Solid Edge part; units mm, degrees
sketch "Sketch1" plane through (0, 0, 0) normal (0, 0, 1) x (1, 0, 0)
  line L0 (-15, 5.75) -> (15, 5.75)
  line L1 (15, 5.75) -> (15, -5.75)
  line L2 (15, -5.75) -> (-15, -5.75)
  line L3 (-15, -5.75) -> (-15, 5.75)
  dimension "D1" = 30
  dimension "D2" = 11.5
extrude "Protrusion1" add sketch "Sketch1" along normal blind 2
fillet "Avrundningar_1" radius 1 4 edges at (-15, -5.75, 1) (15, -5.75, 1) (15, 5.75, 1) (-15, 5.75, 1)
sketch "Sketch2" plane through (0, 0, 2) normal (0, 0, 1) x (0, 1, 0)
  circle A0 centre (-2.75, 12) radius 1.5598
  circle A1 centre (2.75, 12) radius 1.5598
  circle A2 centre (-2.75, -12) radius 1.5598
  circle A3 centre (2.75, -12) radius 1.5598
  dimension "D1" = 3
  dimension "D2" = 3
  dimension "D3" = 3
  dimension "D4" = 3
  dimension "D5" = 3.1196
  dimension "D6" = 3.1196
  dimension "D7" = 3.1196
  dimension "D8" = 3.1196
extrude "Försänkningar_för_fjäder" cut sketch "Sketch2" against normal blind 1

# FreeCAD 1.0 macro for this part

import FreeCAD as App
import Part
import Sketcher
from FreeCAD import Vector
Q = App.Units.Quantity


def edges_at(feature, points):
    """Names of the edges that pass closest to the given points."""
    edges = feature.Shape.Edges
    near = lambda p: min(range(len(edges)), key=lambda i: edges[i].distToShape(Part.Vertex(*p))[0])
    return sorted({f"Edge{near(p) + 1}" for p in points})

doc = App.newDocument("Part")
params = doc.addObject("Spreadsheet::Sheet", "Params")
for row, (alias, value) in enumerate([
    ("sketch1_height", "11.5 mm"),
    ("pad1_length", "2 mm"),
    ("fillet_radius", "1 mm"),
    ("pocket1_length", "1 mm"),
], start=1):
    params.set(f"A{row}", alias)
    params.set(f"B{row}", "=" + value)
    params.setAlias(f"B{row}", alias)

body = doc.addObject("PartDesign::Body", "Body")

# Sketch on XY plane
sketch1 = body.newObject("Sketcher::SketchObject", "Sketch")
sketch1.AttachmentSupport = (doc.getObject("XY_Plane"), [""])
sketch1.MapMode = "FlatFace"
sketch1.addGeometry([
    Part.LineSegment(Vector(15, 6, 0), Vector(-15, 6, 0)),
    Part.LineSegment(Vector(-15, 6, 0), Vector(-15, -6, 0)),
    Part.LineSegment(Vector(-15, -6, 0), Vector(15, -6, 0)),
    Part.LineSegment(Vector(15, -6, 0), Vector(15, 6, 0)),
], False)
sketch1.addConstraint([
    Sketcher.Constraint("Coincident", 0, 2, 1, 1),
    Sketcher.Constraint("Coincident", 1, 2, 2, 1),
    Sketcher.Constraint("Coincident", 2, 2, 3, 1),
    Sketcher.Constraint("Coincident", 3, 2, 0, 1),
    Sketcher.Constraint("Horizontal", 0),
    Sketcher.Constraint("Vertical", 1),
    Sketcher.Constraint("Horizontal", 2),
    Sketcher.Constraint("Vertical", 3),
    Sketcher.Constraint("Symmetric", 0, 2, 2, 2, -1, 1),
    Sketcher.Constraint("DistanceX", 0, 2, -1, 1, Q("15 mm")),
    Sketcher.Constraint("DistanceY", 1, 2, 1, 1, Q("11.5 mm")),
])
sketch1.setExpression("Constraints[10]", "Params.sketch1_height")
pad1 = body.newObject("PartDesign::Pad", "Pad")
pad1.Profile = sketch1
pad1.setExpression("Length", "Params.pad1_length")
doc.recompute()

fillet = body.newObject("PartDesign::Fillet", "Fillet")
fillet.Base = (pad1, edges_at(pad1, [
    (-15, -5.75, 1),
    (15, -5.75, 1),
    (15, 5.75, 1),
    (-15, 5.75, 1),
]))
fillet.setExpression("Radius", "Params.fillet_radius")

# Sketch on XY plane
sketch2 = body.newObject("Sketcher::SketchObject", "Sketch001")
sketch2.AttachmentSupport = (doc.getObject("XY_Plane"), [""])
sketch2.MapMode = "FlatFace"
sketch2.AttachmentOffset = App.Placement(Vector(0, 0, 2), App.Rotation())
sketch2.addGeometry([
    Part.Circle(Vector(-12, -2.8, 0), Vector(0, 0, 1), 1.6),
    Part.Circle(Vector(-12, 2.8, 0), Vector(0, 0, 1), 1.6),
    Part.Circle(Vector(12, -2.8, 0), Vector(0, 0, 1), 1.6),
    Part.Circle(Vector(12, 2.8, 0), Vector(0, 0, 1), 1.6),
], False)
sketch2.addConstraint([
    Sketcher.Constraint("Equal", 0, 1),
    Sketcher.Constraint("Equal", 1, 2),
    Sketcher.Constraint("Equal", 2, 3),
    Sketcher.Constraint("Symmetric", 1, 3, 2, 3, -1, 1),
    Sketcher.Constraint("Symmetric", 0, 3, 3, 3, -1, 1),
    Sketcher.Constraint("Symmetric", 0, 3, 2, 3, -2),
    Sketcher.Constraint("DistanceY", 0, 3, -1, 1, Q("2.75 mm")),
    Sketcher.Constraint("DistanceX", 0, 3, -1, 1, Q("12 mm")),
    Sketcher.Constraint("Diameter", 0, Q("3.1196 mm")),
])
pocket1 = body.newObject("PartDesign::Pocket", "Pocket")
pocket1.Profile = sketch2
pocket1.setExpression("Length", "Params.pocket1_length")

doc.recompute()
